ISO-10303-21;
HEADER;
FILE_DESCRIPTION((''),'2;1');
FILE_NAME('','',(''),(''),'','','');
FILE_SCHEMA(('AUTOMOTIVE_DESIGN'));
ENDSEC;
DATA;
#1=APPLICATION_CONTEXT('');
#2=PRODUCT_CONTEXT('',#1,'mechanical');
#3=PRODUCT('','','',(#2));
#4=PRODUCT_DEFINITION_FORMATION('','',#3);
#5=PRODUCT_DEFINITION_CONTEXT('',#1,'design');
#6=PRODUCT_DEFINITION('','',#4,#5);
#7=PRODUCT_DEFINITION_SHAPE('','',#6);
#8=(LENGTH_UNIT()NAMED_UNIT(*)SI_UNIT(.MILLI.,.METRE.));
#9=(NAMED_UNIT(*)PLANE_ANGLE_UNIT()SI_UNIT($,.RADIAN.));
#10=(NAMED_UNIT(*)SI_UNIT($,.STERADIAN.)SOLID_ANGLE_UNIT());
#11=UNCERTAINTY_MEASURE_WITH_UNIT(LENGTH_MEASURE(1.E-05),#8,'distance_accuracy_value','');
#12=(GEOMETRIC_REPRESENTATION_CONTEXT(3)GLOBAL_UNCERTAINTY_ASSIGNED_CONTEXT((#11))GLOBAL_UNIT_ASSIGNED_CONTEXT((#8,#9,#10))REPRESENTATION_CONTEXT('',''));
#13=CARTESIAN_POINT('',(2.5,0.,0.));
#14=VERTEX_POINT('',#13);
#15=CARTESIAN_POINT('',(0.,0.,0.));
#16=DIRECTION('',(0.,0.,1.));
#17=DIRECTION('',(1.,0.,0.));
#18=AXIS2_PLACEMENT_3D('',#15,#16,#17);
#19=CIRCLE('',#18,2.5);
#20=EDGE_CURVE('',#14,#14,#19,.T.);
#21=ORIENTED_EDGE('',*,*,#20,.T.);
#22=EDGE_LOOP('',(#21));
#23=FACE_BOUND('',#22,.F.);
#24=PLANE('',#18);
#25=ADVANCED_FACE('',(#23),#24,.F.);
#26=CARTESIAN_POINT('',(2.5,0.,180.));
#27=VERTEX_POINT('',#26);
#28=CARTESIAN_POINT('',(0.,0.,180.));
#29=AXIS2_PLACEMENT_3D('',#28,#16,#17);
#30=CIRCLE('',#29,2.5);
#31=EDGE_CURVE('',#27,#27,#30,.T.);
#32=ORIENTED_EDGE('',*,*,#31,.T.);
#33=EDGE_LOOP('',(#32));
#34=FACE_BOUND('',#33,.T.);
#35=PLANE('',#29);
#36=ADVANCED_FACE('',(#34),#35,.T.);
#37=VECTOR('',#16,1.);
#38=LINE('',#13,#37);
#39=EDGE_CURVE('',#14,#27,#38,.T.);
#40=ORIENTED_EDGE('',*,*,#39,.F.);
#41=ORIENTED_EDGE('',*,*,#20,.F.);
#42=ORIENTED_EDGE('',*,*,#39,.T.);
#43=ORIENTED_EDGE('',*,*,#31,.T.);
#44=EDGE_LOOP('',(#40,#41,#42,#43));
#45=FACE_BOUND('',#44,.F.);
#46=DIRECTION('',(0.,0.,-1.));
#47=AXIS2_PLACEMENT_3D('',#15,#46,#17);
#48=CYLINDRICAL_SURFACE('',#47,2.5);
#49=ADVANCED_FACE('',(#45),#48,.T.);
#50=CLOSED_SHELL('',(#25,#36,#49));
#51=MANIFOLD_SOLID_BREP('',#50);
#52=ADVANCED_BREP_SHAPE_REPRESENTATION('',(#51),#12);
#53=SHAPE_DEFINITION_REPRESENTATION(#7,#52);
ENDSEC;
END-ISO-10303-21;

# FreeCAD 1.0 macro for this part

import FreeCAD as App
import Part
import Sketcher
from FreeCAD import Vector
Q = App.Units.Quantity

doc = App.newDocument("Part")
body = doc.addObject("PartDesign::Body", "Body")

# Sketch on XY plane
sketch1 = body.newObject("Sketcher::SketchObject", "Sketch")
sketch1.AttachmentSupport = (doc.getObject("XY_Plane"), [""])
sketch1.MapMode = "FlatFace"
sketch1.addGeometry(Part.Circle(Vector(0, 0, 0), Vector(0, 0, 1), 2.5), False)
sketch1.addConstraint([
    Sketcher.Constraint("Coincident", 0, 3, -1, 1),
    Sketcher.Constraint("Diameter", 0, Q("5 mm")),
])
pad1 = body.newObject("PartDesign::Pad", "Pad")
pad1.Profile = sketch1
pad1.Length = 180

doc.recompute()
